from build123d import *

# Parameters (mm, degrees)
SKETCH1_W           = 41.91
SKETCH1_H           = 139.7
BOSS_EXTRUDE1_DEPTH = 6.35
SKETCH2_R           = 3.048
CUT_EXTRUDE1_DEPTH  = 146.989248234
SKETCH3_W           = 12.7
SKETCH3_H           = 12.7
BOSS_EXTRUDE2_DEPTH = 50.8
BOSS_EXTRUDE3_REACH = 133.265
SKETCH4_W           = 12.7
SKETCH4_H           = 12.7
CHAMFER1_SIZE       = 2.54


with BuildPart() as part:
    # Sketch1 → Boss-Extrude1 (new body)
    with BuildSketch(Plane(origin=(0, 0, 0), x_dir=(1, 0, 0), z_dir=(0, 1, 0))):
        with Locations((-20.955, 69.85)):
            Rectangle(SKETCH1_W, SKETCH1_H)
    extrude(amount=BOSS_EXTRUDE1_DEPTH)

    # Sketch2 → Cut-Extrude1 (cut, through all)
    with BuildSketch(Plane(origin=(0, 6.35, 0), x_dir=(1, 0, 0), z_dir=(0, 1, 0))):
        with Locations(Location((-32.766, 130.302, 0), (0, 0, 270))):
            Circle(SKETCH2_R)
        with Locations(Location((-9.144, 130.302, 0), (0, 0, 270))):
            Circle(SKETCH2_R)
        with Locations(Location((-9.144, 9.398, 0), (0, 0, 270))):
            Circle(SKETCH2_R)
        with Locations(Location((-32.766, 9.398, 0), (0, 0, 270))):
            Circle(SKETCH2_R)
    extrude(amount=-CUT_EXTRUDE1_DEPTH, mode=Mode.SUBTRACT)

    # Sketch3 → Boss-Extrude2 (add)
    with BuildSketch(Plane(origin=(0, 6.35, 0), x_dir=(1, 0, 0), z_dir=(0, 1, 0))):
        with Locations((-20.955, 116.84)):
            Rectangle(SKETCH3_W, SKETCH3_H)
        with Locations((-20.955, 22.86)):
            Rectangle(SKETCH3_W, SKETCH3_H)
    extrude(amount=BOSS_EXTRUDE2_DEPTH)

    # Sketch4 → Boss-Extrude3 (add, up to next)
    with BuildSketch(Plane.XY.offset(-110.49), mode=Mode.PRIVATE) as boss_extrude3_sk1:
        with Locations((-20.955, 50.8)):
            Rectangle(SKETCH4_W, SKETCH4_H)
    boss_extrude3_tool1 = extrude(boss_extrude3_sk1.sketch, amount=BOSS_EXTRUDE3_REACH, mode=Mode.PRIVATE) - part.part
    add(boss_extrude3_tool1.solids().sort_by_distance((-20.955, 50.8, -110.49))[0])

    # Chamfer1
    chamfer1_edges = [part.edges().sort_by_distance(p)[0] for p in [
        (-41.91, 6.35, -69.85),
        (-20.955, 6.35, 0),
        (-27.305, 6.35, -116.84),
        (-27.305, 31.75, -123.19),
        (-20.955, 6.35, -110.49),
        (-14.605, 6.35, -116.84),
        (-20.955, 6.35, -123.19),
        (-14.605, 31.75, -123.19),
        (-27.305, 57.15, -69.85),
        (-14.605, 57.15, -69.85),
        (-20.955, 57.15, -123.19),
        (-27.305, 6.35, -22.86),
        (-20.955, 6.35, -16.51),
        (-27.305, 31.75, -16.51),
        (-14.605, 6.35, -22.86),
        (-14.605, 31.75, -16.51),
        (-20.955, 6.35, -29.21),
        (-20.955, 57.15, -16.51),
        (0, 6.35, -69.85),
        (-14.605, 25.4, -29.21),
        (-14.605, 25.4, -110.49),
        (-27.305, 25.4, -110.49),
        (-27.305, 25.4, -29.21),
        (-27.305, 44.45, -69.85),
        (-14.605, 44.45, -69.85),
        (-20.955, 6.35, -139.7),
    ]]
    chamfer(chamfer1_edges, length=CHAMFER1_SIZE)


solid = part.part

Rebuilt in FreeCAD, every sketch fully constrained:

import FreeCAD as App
import Part
import Sketcher
Q = App.Units.Quantity


def edges_at(feature, points):
    """Names of the edges that pass closest to the given points."""
    edges = feature.Shape.Edges
    near = lambda p: min(range(len(edges)), key=lambda i: edges[i].distToShape(Part.Vertex(*p))[0])
    return sorted({f"Edge{near(p) + 1}" for p in points})


def add_polygon(sketch, points):
    """Adds a closed chain of lines whose ends are joined by coincident constraints."""
    first, n = sketch.GeometryCount, len(points)
    for a, b in zip(points, points[1:] + points[:1]):
        sketch.addGeometry(Part.LineSegment(App.Vector(*a, 0), App.Vector(*b, 0)), False)
    for i in range(n):
        sketch.addConstraint(Sketcher.Constraint("Coincident", first + i, 2, first + (i + 1) % n, 1))

doc = App.newDocument("Part")
params = doc.addObject("Spreadsheet::Sheet", "Params")
for row, (alias, value) in enumerate([
    ("sketch1_height", "5.5 in"),
    ("sketch1_width", "1.65 in"),
    ("pad1_length", "0.25 in"),
    ("sketch2_diameter", "0.24 in"),
    ("sketch3_width", "0.5 in"),
    ("pad2_length", "2 in"),
    ("sketch4_width", "0.5 in"),
    ("chamfer_size", "0.1 in"),
], start=1):
    params.set(f"A{row}", alias)
    params.set(f"B{row}", "=" + value)
    params.setAlias(f"B{row}", alias)

body = doc.addObject("PartDesign::Body", "Body")

sketch1 = body.newObject("Sketcher::SketchObject", "Sketch")
sketch1.AttachmentSupport = (doc.getObject("XZ_Plane"), [""])
sketch1.MapMode = "FlatFace"
add_polygon(sketch1, [(-42, -140), (-42, 0), (0, 0), (0, -140)])
sketch1.addConstraint(Sketcher.Constraint("Vertical", 0))
sketch1.addConstraint(Sketcher.Constraint("Horizontal", 1))
sketch1.addConstraint(Sketcher.Constraint("Vertical", 2))
sketch1.addConstraint(Sketcher.Constraint("Horizontal", 3))
sketch1.addConstraint(Sketcher.Constraint("Coincident", 1, 2, -1, 1))
sketch1.addConstraint(Sketcher.Constraint("DistanceY", 0, 1, 0, 2, Q("5.5 in")))
sketch1.addConstraint(Sketcher.Constraint("DistanceX", 1, 1, 1, 2, Q("1.65 in")))
sketch1.setExpression("Constraints[9]", "Params.sketch1_height")
sketch1.setExpression("Constraints[10]", "Params.sketch1_width")
pad1 = body.newObject("PartDesign::Pad", "Pad")
pad1.Profile = sketch1
pad1.setExpression("Length", "Params.pad1_length")
pad1.Reversed = True

sketch2 = body.newObject("Sketcher::SketchObject", "Sketch001")
sketch2.AttachmentSupport = (doc.getObject("XZ_Plane"), [""])
sketch2.MapMode = "FlatFace"
sketch2.AttachmentOffset = App.Placement(App.Vector(0, 0, -0.25 * 25.4), App.Rotation())
sketch2.addGeometry(Part.Circle(App.Vector(-32.8, -130.3, 0), App.Vector(0, 0, 1), 3), False)
sketch2.addGeometry(Part.Circle(App.Vector(-9.1, -130.3, 0), App.Vector(0, 0, 1), 3), False)
sketch2.addGeometry(Part.Circle(App.Vector(-9.1, -9.4, 0), App.Vector(0, 0, 1), 3), False)
sketch2.addGeometry(Part.Circle(App.Vector(-32.8, -9.4, 0), App.Vector(0, 0, 1), 3), False)
sketch2.addConstraint(Sketcher.Constraint("Equal", 0, 1))
sketch2.addConstraint(Sketcher.Constraint("Equal", 1, 2))
sketch2.addConstraint(Sketcher.Constraint("Equal", 2, 3))
sketch2.addConstraint(Sketcher.Constraint("Horizontal", 0, 3, 1, 3))
sketch2.addConstraint(Sketcher.Constraint("Horizontal", 2, 3, 3, 3))
sketch2.addConstraint(Sketcher.Constraint("Vertical", 1, 3, 2, 3))
sketch2.addConstraint(Sketcher.Constraint("Vertical", 0, 3, 3, 3))
sketch2.addConstraint(Sketcher.Constraint("Diameter", 0, Q("0.24 in")))
sketch2.addConstraint(Sketcher.Constraint("DistanceX", 0, 3, -1, 1, Q("1.29 in")))
sketch2.addConstraint(Sketcher.Constraint("DistanceY", 0, 3, -1, 1, Q("5.13 in")))
sketch2.addConstraint(Sketcher.Constraint("DistanceX", 1, 3, -1, 1, Q("0.36 in")))
sketch2.addConstraint(Sketcher.Constraint("DistanceY", 2, 3, -1, 1, Q("0.37 in")))
sketch2.setExpression("Constraints[7]", "Params.sketch2_diameter")
pocket1 = body.newObject("PartDesign::Pocket", "Pocket")
pocket1.Profile = sketch2
pocket1.Type = "ThroughAll"
pocket1.Reversed = True

sketch3 = body.newObject("Sketcher::SketchObject", "Sketch002")
sketch3.AttachmentSupport = (doc.getObject("XZ_Plane"), [""])
sketch3.MapMode = "FlatFace"
sketch3.AttachmentOffset = App.Placement(App.Vector(0, 0, -0.25 * 25.4), App.Rotation())
add_polygon(sketch3, [(-27, -123), (-27, -110), (-15, -110), (-15, -123)])
add_polygon(sketch3, [(-27, -29), (-27, -17), (-15, -17), (-15, -29)])
sketch3.addConstraint(Sketcher.Constraint("Vertical", 0))
sketch3.addConstraint(Sketcher.Constraint("Horizontal", 1))
sketch3.addConstraint(Sketcher.Constraint("Vertical", 2))
sketch3.addConstraint(Sketcher.Constraint("Horizontal", 3))
sketch3.addConstraint(Sketcher.Constraint("Vertical", 4))
sketch3.addConstraint(Sketcher.Constraint("Horizontal", 5))
sketch3.addConstraint(Sketcher.Constraint("Vertical", 6))
sketch3.addConstraint(Sketcher.Constraint("Horizontal", 7))
sketch3.addConstraint(Sketcher.Constraint("Vertical", 3, 2, 4, 2))
sketch3.addConstraint(Sketcher.Constraint("Vertical", 2, 2, 5, 2))
sketch3.addConstraint(Sketcher.Constraint("Equal", 7, 0))
sketch3.addConstraint(Sketcher.Constraint("Equal", 2, 4))
sketch3.addConstraint(Sketcher.Constraint("DistanceX", 1, 1, 1, 2, Q("0.5 in")))
sketch3.addConstraint(Sketcher.Constraint("DistanceY", 0, 2, 4, 2, Q("3.7 in")))
sketch3.addConstraint(Sketcher.Constraint("DistanceY", 0, 2, -1, 1, Q("4.35 in")))
sketch3.addConstraint(Sketcher.Constraint("DistanceX", 0, 2, -1, 1, Q("1.075 in")))
sketch3.setExpression("Constraints[20]", "Params.sketch3_width")
pad2 = body.newObject("PartDesign::Pad", "Pad001")
pad2.Profile = sketch3
pad2.setExpression("Length", "Params.pad2_length")
pad2.Reversed = True

sketch4 = body.newObject("Sketcher::SketchObject", "Sketch003")
sketch4.AttachmentSupport = (doc.getObject("XY_Plane"), [""])
sketch4.MapMode = "FlatFace"
sketch4.AttachmentOffset = App.Placement(App.Vector(0, 0, -4.35 * 25.4), App.Rotation())
add_polygon(sketch4, [(-27, 57), (-27, 44), (-15, 44), (-15, 57)])
sketch4.addConstraint(Sketcher.Constraint("Vertical", 0))
sketch4.addConstraint(Sketcher.Constraint("Horizontal", 1))
sketch4.addConstraint(Sketcher.Constraint("Vertical", 2))
sketch4.addConstraint(Sketcher.Constraint("Horizontal", 3))
sketch4.addConstraint(Sketcher.Constraint("Equal", 3, 0))
sketch4.addConstraint(Sketcher.Constraint("DistanceX", 1, 1, 1, 2, Q("0.5 in")))
sketch4.addConstraint(Sketcher.Constraint("DistanceY", -1, 1, 0, 2, Q("1.75 in")))
sketch4.addConstraint(Sketcher.Constraint("DistanceX", 0, 2, -1, 1, Q("1.075 in")))
sketch4.setExpression("Constraints[9]", "Params.sketch4_width")
pad3 = body.newObject("PartDesign::Pad", "Pad002")
pad3.Profile = sketch4
pad3.Type = "UpToFirst"
doc.recompute()

chamfer = body.newObject("PartDesign::Chamfer", "Chamfer")
chamfer.Base = (pad3, edges_at(pad3, [
    (-41.91, 6.35, -69.85),
    (-20.955, 6.35, 0),
    (-27.305, 6.35, -116.84),
    (-27.305, 31.75, -123.19),
    (-20.955, 6.35, -110.49),
    (-14.605, 6.35, -116.84),
    (-20.955, 6.35, -123.19),
    (-14.605, 31.75, -123.19),
    (-27.305, 57.15, -69.85),
    (-14.605, 57.15, -69.85),
    (-20.955, 57.15, -123.19),
    (-27.305, 6.35, -22.86),
    (-20.955, 6.35, -16.51),
    (-27.305, 31.75, -16.51),
    (-14.605, 6.35, -22.86),
    (-14.605, 31.75, -16.51),
    (-20.955, 6.35, -29.21),
    (-20.955, 57.15, -16.51),
    (0, 6.35, -69.85),
    (-14.605, 25.4, -29.21),
    (-14.605, 25.4, -110.49),
    (-27.305, 25.4, -110.49),
    (-27.305, 25.4, -29.21),
    (-27.305, 44.45, -69.85),
    (-14.605, 44.45, -69.85),
    (-20.955, 6.35, -139.7),
]))
chamfer.setExpression("Size", "Params.chamfer_size")

doc.recompute()
